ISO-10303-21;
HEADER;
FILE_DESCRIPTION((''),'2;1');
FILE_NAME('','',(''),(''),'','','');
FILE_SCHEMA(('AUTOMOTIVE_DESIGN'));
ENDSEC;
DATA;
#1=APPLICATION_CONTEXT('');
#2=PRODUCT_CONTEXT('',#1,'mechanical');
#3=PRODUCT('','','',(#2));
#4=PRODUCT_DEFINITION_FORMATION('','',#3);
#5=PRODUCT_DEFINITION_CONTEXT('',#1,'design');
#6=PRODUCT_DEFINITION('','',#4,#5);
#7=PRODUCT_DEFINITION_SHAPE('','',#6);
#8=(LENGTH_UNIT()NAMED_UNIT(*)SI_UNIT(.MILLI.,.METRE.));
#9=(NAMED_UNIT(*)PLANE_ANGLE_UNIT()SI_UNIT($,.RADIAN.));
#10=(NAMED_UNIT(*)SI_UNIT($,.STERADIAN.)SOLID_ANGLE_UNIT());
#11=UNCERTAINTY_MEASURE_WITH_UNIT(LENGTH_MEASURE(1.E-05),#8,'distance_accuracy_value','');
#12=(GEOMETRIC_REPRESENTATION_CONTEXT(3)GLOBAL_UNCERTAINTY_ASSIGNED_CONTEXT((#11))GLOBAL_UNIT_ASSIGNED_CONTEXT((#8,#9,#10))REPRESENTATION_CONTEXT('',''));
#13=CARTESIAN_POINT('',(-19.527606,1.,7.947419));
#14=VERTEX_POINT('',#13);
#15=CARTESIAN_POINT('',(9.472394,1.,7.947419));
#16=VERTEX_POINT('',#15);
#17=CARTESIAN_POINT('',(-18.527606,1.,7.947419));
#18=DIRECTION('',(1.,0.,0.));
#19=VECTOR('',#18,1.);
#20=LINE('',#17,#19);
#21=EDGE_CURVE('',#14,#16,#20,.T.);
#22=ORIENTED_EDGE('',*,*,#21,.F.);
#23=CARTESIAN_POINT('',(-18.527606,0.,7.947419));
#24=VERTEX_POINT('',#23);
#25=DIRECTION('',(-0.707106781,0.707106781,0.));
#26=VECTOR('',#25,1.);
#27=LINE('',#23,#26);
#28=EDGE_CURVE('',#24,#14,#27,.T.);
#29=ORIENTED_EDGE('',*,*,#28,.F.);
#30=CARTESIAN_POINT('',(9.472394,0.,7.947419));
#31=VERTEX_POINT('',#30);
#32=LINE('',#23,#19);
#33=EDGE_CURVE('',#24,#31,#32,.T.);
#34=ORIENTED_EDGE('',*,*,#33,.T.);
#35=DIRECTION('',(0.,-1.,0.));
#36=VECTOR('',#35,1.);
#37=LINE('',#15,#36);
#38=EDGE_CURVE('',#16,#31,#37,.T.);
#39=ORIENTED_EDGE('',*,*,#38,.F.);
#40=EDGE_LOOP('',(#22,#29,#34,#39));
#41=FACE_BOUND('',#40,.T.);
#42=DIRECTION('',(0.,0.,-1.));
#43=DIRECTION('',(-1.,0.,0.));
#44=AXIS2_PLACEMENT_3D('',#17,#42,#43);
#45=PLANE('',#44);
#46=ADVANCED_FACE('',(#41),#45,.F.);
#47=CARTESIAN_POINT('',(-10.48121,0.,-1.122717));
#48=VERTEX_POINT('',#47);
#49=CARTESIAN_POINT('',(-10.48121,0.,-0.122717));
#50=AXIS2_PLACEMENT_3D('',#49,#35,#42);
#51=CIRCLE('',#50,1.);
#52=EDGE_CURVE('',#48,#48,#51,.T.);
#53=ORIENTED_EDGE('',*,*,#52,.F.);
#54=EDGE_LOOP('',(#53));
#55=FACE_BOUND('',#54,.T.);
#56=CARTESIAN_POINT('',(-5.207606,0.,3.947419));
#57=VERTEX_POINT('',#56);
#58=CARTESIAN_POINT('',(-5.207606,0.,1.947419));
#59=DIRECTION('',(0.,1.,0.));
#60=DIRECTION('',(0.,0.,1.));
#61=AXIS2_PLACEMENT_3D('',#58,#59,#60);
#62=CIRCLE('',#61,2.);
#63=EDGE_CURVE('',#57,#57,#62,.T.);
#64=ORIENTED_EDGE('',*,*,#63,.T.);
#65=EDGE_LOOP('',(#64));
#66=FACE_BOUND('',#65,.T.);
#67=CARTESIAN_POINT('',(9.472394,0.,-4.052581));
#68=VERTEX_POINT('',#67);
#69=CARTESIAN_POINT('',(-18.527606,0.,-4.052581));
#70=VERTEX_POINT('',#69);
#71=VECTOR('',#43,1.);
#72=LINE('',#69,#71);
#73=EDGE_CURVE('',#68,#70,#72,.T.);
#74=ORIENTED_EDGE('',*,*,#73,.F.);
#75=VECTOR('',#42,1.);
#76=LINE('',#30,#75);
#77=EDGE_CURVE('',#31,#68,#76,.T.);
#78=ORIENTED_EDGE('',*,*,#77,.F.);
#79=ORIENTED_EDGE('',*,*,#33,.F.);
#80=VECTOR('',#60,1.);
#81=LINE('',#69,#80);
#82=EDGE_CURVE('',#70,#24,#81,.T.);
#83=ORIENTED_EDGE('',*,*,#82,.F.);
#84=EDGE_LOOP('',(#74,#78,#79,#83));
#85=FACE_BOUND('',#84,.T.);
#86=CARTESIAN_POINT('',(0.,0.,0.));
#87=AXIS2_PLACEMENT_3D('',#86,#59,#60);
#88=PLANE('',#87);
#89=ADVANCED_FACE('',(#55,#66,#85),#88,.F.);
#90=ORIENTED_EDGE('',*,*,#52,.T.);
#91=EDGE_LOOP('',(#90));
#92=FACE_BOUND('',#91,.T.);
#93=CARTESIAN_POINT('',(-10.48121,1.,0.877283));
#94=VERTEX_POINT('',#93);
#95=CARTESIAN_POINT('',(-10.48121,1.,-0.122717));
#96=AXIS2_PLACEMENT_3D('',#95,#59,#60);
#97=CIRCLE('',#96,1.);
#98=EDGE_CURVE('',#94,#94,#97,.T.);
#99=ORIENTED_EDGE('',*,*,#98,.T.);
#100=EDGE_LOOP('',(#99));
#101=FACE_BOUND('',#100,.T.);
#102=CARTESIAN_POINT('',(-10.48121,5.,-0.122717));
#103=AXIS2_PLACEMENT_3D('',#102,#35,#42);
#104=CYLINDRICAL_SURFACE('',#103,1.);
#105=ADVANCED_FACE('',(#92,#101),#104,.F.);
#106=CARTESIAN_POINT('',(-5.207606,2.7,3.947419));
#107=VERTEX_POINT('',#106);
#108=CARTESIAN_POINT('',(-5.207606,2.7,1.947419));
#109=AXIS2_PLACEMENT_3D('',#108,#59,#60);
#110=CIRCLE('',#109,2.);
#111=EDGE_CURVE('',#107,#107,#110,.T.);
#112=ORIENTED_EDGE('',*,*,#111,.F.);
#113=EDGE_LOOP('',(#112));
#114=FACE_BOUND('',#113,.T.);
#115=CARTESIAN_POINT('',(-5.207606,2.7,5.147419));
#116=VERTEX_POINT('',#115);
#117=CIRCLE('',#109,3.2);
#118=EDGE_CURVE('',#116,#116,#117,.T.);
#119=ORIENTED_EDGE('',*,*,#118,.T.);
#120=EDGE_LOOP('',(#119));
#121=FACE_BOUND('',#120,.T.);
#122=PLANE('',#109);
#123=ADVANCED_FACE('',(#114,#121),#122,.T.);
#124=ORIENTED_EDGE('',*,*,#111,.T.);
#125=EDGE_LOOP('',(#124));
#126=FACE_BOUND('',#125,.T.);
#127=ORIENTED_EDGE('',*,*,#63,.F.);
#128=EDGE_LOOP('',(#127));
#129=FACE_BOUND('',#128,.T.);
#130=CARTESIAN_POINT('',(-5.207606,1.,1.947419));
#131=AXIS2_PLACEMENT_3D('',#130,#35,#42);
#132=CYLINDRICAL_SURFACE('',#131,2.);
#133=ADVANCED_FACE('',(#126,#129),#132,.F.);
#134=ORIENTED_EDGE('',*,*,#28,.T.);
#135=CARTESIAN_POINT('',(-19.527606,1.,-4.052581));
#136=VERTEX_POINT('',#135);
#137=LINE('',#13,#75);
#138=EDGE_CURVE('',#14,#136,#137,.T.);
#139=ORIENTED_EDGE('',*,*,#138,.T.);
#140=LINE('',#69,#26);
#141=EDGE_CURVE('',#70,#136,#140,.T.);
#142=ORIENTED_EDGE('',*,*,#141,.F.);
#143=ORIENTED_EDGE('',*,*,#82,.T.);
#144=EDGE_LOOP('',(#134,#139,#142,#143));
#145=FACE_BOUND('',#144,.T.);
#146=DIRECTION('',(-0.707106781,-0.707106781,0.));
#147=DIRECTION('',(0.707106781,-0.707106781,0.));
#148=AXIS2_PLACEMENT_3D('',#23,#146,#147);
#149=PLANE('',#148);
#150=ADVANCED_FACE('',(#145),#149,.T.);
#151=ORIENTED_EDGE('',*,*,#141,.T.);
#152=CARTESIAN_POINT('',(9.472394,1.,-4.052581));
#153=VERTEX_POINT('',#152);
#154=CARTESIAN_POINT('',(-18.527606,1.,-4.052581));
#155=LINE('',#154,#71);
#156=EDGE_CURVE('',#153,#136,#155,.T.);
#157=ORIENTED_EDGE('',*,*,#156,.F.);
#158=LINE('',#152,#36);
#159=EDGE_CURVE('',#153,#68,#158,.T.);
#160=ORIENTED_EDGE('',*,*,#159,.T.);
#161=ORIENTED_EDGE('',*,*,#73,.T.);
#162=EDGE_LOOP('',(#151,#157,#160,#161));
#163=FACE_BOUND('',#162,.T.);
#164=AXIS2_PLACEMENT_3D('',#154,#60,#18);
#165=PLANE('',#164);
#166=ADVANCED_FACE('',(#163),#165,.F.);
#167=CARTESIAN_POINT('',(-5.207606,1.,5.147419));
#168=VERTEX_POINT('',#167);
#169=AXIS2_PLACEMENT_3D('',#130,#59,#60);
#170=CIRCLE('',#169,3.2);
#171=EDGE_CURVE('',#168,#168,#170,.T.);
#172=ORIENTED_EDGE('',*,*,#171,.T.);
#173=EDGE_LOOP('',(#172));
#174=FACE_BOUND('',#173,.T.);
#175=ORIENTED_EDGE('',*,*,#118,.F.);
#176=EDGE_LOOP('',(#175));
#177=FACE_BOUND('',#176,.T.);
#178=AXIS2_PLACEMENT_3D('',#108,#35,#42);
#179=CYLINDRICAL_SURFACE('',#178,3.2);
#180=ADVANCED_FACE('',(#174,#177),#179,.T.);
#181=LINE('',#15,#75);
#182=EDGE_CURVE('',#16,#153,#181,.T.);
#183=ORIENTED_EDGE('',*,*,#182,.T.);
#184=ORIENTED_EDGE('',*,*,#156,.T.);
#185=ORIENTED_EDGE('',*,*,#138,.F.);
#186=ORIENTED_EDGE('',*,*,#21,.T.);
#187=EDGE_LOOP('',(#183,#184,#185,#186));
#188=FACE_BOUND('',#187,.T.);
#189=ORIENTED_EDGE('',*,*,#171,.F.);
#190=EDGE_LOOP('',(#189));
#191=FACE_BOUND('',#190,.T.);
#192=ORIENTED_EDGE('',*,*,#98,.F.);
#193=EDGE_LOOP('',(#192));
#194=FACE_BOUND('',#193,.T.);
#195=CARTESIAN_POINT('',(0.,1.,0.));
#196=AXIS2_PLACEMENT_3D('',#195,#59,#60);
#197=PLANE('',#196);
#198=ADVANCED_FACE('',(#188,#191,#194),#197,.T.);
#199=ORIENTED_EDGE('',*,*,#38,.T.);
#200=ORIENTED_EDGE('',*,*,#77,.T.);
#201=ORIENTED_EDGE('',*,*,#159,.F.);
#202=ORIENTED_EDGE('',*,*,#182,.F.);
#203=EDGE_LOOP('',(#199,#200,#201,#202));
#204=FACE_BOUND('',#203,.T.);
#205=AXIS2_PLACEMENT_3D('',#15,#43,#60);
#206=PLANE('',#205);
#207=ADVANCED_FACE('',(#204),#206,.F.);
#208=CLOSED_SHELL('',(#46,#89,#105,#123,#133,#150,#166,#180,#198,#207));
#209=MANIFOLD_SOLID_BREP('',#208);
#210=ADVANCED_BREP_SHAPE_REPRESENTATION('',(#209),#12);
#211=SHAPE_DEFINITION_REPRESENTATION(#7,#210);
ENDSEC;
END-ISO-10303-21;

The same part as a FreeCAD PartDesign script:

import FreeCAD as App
import Part
import Sketcher
from FreeCAD import Vector
Q = App.Units.Quantity

doc = App.newDocument("Part")
body = doc.addObject("PartDesign::Body", "Body")

sketch1 = body.newObject("Sketcher::SketchObject", "Sketch")
sketch1.AttachmentSupport = (doc.getObject("XZ_Plane"), [""])
sketch1.MapMode = "FlatFace"
sketch1.addGeometry(Part.LineSegment(Vector(-18.5, -4.1, 0), Vector(-18.5, 7.9, 0)), False)
sketch1.addGeometry(Part.LineSegment(Vector(-18.5, 7.9, 0), Vector(11.5, 7.9, 0)), False)
sketch1.addGeometry(Part.LineSegment(Vector(11.5, 7.9, 0), Vector(11.5, -4.1, 0)), False)
sketch1.addGeometry(Part.LineSegment(Vector(11.5, -4.1, 0), Vector(-18.5, -4.1, 0)), False)
sketch1.addGeometry(Part.Circle(Vector(-5.2, 1.9, 0), Vector(0, 0, 1), 2), False)
sketch1.addConstraint(Sketcher.Constraint("Coincident", 0, 2, 1, 1))
sketch1.addConstraint(Sketcher.Constraint("Coincident", 1, 2, 2, 1))
sketch1.addConstraint(Sketcher.Constraint("Coincident", 2, 2, 3, 1))
sketch1.addConstraint(Sketcher.Constraint("Coincident", 3, 2, 0, 1))
sketch1.addConstraint(Sketcher.Constraint("Vertical", 0))
sketch1.addConstraint(Sketcher.Constraint("Horizontal", 1))
sketch1.addConstraint(Sketcher.Constraint("Vertical", 2))
sketch1.addConstraint(Sketcher.Constraint("Horizontal", 3))
sketch1.addConstraint(Sketcher.Constraint("Diameter", 4, Q("4 mm")))
sketch1.addConstraint(Sketcher.Constraint("DistanceX", 1, 1, 1, 2, Q("30 mm")))
sketch1.addConstraint(Sketcher.Constraint("DistanceY", 0, 1, 0, 2, Q("12 mm")))
sketch1.addConstraint(Sketcher.Constraint("DistanceY", 4, 3, 0, 2, Q("6 mm")))
sketch1.addConstraint(Sketcher.Constraint("DistanceX", 0, 2, 4, 3, Q("13.32 mm")))
sketch1.addConstraint(Sketcher.Constraint("DistanceY", -1, 1, 4, 3, Q("1.947419 mm")))
sketch1.addConstraint(Sketcher.Constraint("DistanceX", 4, 3, -1, 1, Q("5.207606 mm")))
pad1 = body.newObject("PartDesign::Pad", "Pad")
pad1.Profile = sketch1
pad1.Length = 1
pad1.Reversed = True

sketch2 = body.newObject("Sketcher::SketchObject", "Sketch001")
sketch2.AttachmentSupport = (doc.getObject("XZ_Plane"), [""])
sketch2.MapMode = "FlatFace"
sketch2.AttachmentOffset = App.Placement(Vector(0, 0, -1), App.Rotation())
sketch2.addGeometry(Part.Circle(Vector(-5.2, 1.9, 0), Vector(0, 0, 1), 3.2), False)
sketch2.addGeometry(Part.Circle(Vector(-5.2, 1.9, 0), Vector(0, 0, 1), 2), False)
sketch2.addConstraint(Sketcher.Constraint("Coincident", 1, 3, 0, 3))
sketch2.addConstraint(Sketcher.Constraint("Diameter", 1, Q("4 mm")))
sketch2.addConstraint(Sketcher.Constraint("Diameter", 0, Q("6.4 mm")))
sketch2.addConstraint(Sketcher.Constraint("DistanceY", -1, 1, 0, 3, Q("1.947419 mm")))
sketch2.addConstraint(Sketcher.Constraint("DistanceX", 0, 3, -1, 1, Q("5.207606 mm")))
pad2 = body.newObject("PartDesign::Pad", "Pad001")
pad2.Profile = sketch2
pad2.Length = 1.7
pad2.Reversed = True

sketch3 = body.newObject("Sketcher::SketchObject", "Sketch002")
sketch3.AttachmentSupport = (doc.getObject("XZ_Plane"), [""])
sketch3.MapMode = "FlatFace"
sketch3.addGeometry(Part.Circle(Vector(-10.5, -0.1, 0), Vector(0, 0, 1), 1), False)
sketch3.addConstraint(Sketcher.Constraint("Diameter", 0, Q("2 mm")))
sketch3.addConstraint(Sketcher.Constraint("DistanceX", 0, 3, -1, 1, Q("10.48121 mm")))
sketch3.addConstraint(Sketcher.Constraint("DistanceY", 0, 3, -1, 1, Q("0.122717 mm")))
pocket1 = body.newObject("PartDesign::Pocket", "Pocket")
pocket1.Profile = sketch3
pocket1.Length = 5

sketch4 = body.newObject("Sketcher::SketchObject", "Sketch003")
sketch4.AttachmentSupport = (doc.getObject("XY_Plane"), [""])
sketch4.MapMode = "FlatFace"
sketch4.AttachmentOffset = App.Placement(Vector(0, 0, -4.052581), App.Rotation())
sketch4.addGeometry(Part.LineSegment(Vector(-18.5, 1, 0), Vector(-18.5, 0, 0)), False)
sketch4.addGeometry(Part.LineSegment(Vector(-18.5, 0, 0), Vector(-19.5, 1, 0)), False)
sketch4.addGeometry(Part.LineSegment(Vector(-19.5, 1, 0), Vector(-18.5, 1, 0)), False)
sketch4.addConstraint(Sketcher.Constraint("Coincident", 0, 2, 1, 1))
sketch4.addConstraint(Sketcher.Constraint("Coincident", 1, 2, 2, 1))
sketch4.addConstraint(Sketcher.Constraint("Coincident", 2, 2, 0, 1))
sketch4.addConstraint(Sketcher.Constraint("Vertical", 0))
sketch4.addConstraint(Sketcher.Constraint("Horizontal", 2))
sketch4.addConstraint(Sketcher.Constraint("PointOnObject", 0, 2, -1))
sketch4.addConstraint(Sketcher.Constraint("Equal", 2, 0))
sketch4.addConstraint(Sketcher.Constraint("DistanceX", 2, 1, 2, 2, Q("1 mm")))
sketch4.addConstraint(Sketcher.Constraint("DistanceX", 0, 2, -1, 1, Q("18.527606 mm")))
pad3 = body.newObject("PartDesign::Pad", "Pad002")
pad3.Profile = sketch4
pad3.Length = 12

sketch5 = body.newObject("Sketcher::SketchObject", "Sketch004")
sketch5.AttachmentSupport = (doc.getObject("XZ_Plane"), [""])
sketch5.MapMode = "FlatFace"
sketch5.addGeometry(Part.LineSegment(Vector(9.5, 7.9, 0), Vector(9.5, -4.1, 0)), False)
sketch5.addGeometry(Part.LineSegment(Vector(9.5, -4.1, 0), Vector(11.5, -4.1, 0)), False)
sketch5.addGeometry(Part.LineSegment(Vector(11.5, -4.1, 0), Vector(11.5, 7.9, 0)), False)
sketch5.addGeometry(Part.LineSegment(Vector(11.5, 7.9, 0), Vector(9.5, 7.9, 0)), False)
sketch5.addConstraint(Sketcher.Constraint("Coincident", 0, 2, 1, 1))
sketch5.addConstraint(Sketcher.Constraint("Coincident", 1, 2, 2, 1))
sketch5.addConstraint(Sketcher.Constraint("Coincident", 2, 2, 3, 1))
sketch5.addConstraint(Sketcher.Constraint("Coincident", 3, 2, 0, 1))
sketch5.addConstraint(Sketcher.Constraint("Vertical", 0))
sketch5.addConstraint(Sketcher.Constraint("Horizontal", 1))
sketch5.addConstraint(Sketcher.Constraint("Vertical", 2))
sketch5.addConstraint(Sketcher.Constraint("Horizontal", 3))
sketch5.addConstraint(Sketcher.Constraint("DistanceX", 1, 1, 1, 2, Q("2 mm")))
sketch5.addConstraint(Sketcher.Constraint("DistanceY", 0, 2, 0, 1, Q("12 mm")))
sketch5.addConstraint(Sketcher.Constraint("DistanceY", 0, 2, -1, 1, Q("4.052581 mm")))
sketch5.addConstraint(Sketcher.Constraint("DistanceX", -1, 1, 0, 2, Q("9.472394 mm")))
pocket2 = body.newObject("PartDesign::Pocket", "Pocket001")
pocket2.Profile = sketch5
pocket2.Length = 1

doc.recompute()
